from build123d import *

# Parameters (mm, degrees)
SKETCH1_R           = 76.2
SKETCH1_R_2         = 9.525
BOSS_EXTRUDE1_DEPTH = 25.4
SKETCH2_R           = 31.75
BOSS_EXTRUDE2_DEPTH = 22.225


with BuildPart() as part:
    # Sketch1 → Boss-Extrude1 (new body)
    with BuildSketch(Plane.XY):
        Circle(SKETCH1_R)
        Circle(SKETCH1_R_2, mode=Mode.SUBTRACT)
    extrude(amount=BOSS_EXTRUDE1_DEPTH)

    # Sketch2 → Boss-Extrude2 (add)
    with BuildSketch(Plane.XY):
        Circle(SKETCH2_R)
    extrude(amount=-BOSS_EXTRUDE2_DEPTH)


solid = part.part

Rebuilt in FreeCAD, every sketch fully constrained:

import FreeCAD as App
import Part
import Sketcher
Q = App.Units.Quantity

doc = App.newDocument("Part")
body = doc.addObject("PartDesign::Body", "Body")

# Sketch on XY plane
sketch1 = body.newObject("Sketcher::SketchObject", "Sketch")
sketch1.AttachmentSupport = (doc.getObject("XY_Plane"), [""])
sketch1.MapMode = "FlatFace"
sketch1.addGeometry(Part.Circle(App.Vector(0, 0, 0), App.Vector(0, 0, 1), 76), False)
sketch1.addGeometry(Part.Circle(App.Vector(0, 0, 0), App.Vector(0, 0, 1), 10), False)
sketch1.addConstraint(Sketcher.Constraint("Coincident", 0, 3, -1, 1))
sketch1.addConstraint(Sketcher.Constraint("Coincident", 1, 3, -1, 1))
sketch1.addConstraint(Sketcher.Constraint("Diameter", 0, Q("6 in")))
sketch1.addConstraint(Sketcher.Constraint("Diameter", 1, Q("0.75 in")))
pad1 = body.newObject("PartDesign::Pad", "Pad")
pad1.Profile = sketch1
pad1.Length = Q("1 in")

# Sketch on XY plane
sketch2 = body.newObject("Sketcher::SketchObject", "Sketch001")
sketch2.AttachmentSupport = (doc.getObject("XY_Plane"), [""])
sketch2.MapMode = "FlatFace"
sketch2.addGeometry(Part.Circle(App.Vector(0, 0, 0), App.Vector(0, 0, 1), 32), False)
sketch2.addConstraint(Sketcher.Constraint("Coincident", 0, 3, -1, 1))
sketch2.addConstraint(Sketcher.Constraint("Diameter", 0, Q("2.5 in")))
pad2 = body.newObject("PartDesign::Pad", "Pad001")
pad2.Profile = sketch2
pad2.Length = Q("0.875 in")
pad2.Reversed = True

doc.recompute()
